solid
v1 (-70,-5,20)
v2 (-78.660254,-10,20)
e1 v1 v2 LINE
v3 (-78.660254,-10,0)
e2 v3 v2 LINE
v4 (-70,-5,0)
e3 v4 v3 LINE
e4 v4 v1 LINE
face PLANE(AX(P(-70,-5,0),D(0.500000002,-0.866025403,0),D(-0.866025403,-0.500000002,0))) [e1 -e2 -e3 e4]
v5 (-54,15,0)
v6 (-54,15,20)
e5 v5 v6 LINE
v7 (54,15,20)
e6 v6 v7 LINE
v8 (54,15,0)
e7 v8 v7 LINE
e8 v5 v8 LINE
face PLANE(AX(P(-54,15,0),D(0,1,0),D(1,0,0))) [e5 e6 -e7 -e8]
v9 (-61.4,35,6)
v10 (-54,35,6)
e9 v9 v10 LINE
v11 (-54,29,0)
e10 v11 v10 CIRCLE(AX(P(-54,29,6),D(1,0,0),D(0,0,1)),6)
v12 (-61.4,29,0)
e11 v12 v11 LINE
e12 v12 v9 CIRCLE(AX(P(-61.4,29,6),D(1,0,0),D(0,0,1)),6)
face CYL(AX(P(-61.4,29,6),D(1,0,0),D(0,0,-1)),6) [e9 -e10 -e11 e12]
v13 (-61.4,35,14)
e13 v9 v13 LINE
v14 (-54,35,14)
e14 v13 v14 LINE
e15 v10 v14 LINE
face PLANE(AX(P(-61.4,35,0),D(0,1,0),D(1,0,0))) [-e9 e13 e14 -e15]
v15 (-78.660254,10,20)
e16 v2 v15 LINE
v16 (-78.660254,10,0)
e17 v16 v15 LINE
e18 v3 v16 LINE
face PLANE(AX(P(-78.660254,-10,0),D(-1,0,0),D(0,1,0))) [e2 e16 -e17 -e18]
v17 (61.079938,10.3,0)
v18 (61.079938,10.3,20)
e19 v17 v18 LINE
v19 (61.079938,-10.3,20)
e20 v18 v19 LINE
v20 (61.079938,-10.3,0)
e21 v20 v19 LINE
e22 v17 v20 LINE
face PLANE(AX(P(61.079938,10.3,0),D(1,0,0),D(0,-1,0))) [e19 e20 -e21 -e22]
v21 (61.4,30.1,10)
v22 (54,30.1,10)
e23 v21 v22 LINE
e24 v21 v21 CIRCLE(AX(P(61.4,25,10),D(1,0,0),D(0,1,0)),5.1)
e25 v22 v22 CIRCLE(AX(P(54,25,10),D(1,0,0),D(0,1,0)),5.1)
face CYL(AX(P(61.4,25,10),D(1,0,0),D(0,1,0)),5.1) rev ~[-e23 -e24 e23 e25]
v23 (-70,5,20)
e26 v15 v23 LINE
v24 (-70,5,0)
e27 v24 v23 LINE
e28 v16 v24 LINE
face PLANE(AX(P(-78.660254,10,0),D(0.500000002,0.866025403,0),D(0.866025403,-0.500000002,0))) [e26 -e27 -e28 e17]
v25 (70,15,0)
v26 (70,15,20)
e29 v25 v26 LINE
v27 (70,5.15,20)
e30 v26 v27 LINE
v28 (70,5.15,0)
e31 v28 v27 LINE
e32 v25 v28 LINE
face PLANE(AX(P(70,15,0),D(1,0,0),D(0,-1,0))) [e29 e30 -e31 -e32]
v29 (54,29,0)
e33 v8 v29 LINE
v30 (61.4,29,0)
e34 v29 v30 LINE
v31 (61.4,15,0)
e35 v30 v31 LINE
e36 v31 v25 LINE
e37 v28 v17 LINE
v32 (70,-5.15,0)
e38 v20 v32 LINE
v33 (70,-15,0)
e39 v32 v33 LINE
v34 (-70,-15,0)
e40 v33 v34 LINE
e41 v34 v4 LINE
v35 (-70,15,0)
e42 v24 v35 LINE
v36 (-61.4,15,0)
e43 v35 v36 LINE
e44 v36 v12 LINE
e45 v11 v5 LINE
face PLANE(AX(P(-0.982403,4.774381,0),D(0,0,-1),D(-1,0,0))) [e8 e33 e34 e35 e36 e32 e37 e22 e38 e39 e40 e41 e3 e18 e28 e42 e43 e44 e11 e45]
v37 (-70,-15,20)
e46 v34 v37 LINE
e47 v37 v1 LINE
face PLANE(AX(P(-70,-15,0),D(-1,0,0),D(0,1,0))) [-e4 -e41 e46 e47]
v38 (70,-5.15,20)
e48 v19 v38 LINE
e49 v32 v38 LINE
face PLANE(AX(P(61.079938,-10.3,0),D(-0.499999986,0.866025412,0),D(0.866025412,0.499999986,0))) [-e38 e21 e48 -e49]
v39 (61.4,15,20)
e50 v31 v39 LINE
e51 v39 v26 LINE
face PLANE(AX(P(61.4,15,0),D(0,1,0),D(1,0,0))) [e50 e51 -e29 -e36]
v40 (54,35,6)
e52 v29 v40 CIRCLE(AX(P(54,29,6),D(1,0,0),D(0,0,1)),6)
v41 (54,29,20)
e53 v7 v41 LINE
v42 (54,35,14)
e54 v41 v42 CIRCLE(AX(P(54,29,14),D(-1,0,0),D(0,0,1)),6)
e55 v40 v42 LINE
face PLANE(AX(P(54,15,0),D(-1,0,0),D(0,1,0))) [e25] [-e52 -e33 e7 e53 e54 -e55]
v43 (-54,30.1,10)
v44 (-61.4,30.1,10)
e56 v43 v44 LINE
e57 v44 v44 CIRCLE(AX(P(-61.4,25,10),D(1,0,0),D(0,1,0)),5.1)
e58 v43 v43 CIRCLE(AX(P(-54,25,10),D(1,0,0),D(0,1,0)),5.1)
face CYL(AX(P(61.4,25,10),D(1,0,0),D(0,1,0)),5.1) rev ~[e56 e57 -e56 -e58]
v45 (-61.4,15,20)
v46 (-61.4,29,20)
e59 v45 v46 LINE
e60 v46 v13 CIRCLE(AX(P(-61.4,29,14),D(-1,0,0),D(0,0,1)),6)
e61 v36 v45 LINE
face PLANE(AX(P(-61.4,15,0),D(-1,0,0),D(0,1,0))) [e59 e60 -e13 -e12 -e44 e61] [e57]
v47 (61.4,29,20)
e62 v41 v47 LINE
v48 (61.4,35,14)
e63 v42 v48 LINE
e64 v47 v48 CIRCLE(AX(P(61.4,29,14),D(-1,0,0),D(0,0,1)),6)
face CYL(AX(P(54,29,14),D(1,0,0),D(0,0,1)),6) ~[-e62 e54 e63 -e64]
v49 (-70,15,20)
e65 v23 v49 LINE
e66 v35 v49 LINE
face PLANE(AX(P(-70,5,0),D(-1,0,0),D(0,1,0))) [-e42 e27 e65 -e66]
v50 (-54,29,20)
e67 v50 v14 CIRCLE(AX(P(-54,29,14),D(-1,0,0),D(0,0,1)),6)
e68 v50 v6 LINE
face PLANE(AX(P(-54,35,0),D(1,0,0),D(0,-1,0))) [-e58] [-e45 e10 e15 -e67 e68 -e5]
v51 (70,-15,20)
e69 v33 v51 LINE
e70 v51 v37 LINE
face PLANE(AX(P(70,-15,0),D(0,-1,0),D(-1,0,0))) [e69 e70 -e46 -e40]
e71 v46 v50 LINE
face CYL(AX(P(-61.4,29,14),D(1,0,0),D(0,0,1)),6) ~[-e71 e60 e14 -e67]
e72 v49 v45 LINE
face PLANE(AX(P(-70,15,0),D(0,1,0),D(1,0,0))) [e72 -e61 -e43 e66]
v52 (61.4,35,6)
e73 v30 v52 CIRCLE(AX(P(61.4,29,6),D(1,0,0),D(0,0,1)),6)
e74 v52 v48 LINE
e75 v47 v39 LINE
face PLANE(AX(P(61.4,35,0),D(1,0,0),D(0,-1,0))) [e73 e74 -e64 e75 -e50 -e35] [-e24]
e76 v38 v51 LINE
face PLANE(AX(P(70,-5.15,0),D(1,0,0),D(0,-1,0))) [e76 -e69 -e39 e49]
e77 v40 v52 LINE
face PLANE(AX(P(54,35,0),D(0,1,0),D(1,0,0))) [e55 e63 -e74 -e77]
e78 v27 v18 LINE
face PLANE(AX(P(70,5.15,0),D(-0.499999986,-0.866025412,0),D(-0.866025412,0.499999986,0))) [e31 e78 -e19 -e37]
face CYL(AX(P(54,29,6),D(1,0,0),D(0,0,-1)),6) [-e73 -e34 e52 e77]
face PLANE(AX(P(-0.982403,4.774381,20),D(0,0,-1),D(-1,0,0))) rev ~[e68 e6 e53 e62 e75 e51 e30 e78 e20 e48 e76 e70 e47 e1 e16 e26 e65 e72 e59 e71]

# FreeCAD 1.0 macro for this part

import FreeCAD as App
import Part
import Sketcher
from FreeCAD import Vector
Q = App.Units.Quantity


def edges_at(feature, points):
    """Names of the edges that pass closest to the given points."""
    edges = feature.Shape.Edges
    near = lambda p: min(range(len(edges)), key=lambda i: edges[i].distToShape(Part.Vertex(*p))[0])
    return sorted({f"Edge{near(p) + 1}" for p in points})


def add_polygon(sketch, points):
    """Adds a closed chain of lines whose ends are joined by coincident constraints."""
    first, n = sketch.GeometryCount, len(points)
    for a, b in zip(points, points[1:] + points[:1]):
        sketch.addGeometry(Part.LineSegment(App.Vector(*a, 0), App.Vector(*b, 0)), False)
    for i in range(n):
        sketch.addConstraint(Sketcher.Constraint("Coincident", first + i, 2, first + (i + 1) % n, 1))

doc = App.newDocument("Part")
params = doc.addObject("Spreadsheet::Sheet", "Params")
for row, (alias, value) in enumerate([
    ("sketch1_width", "140 mm"),
    ("sketch1_width2", "108 mm"),
    ("sketch1_height", "10 mm"),
    ("sketch1_height2", "20 mm"),
    ("sketch1_length", "10 mm"),
    ("pad1_length", "20 mm"),
    ("sketch2_diameter", "10.2 mm"),
    ("pocket1_length", "200 mm"),
    ("fillet_radius", "6 mm"),
], start=1):
    params.set(f"A{row}", alias)
    params.set(f"B{row}", "=" + value)
    params.setAlias(f"B{row}", alias)

body = doc.addObject("PartDesign::Body", "Body")

sketch1 = doc.addObject("Sketcher::SketchObject", "Sketch")
body.addObject(sketch1)
sketch1.AttachmentSupport = (doc.XY_Plane, [""])
sketch1.MapMode = "FlatFace"
add_polygon(sketch1, [(-61, 15), (-70, 15), (-70, 5), (-79, 10), (-79, -10), (-70, -5), (-70, -15), (70, -15), (70, -5), (61, -10), (61, 10), (70, 5), (70, 15), (61, 15), (61, 35), (54, 35), (54, 15), (-54, 15), (-54, 35), (-61, 35)])
sketch1.addConstraint([
    Sketcher.Constraint("Horizontal", 0),
    Sketcher.Constraint("Vertical", 1),
    Sketcher.Constraint("Vertical", 3),
    Sketcher.Constraint("Vertical", 5),
    Sketcher.Constraint("Horizontal", 6),
    Sketcher.Constraint("Vertical", 7),
    Sketcher.Constraint("Vertical", 9),
    Sketcher.Constraint("Vertical", 11),
    Sketcher.Constraint("Horizontal", 12),
    Sketcher.Constraint("Vertical", 13),
    Sketcher.Constraint("Horizontal", 14),
    Sketcher.Constraint("Vertical", 15),
    Sketcher.Constraint("Horizontal", 16),
    Sketcher.Constraint("Vertical", 17),
    Sketcher.Constraint("Horizontal", 18),
    Sketcher.Constraint("Vertical", 19),
    Sketcher.Constraint("Symmetric", 0, 2, 6, 2, -1, 1),
    Sketcher.Constraint("Symmetric", 5, 2, 11, 2, -1, 1),
    Sketcher.Constraint("Symmetric", 14, 2, 17, 2, -2),
    Sketcher.Constraint("Symmetric", 1, 2, 4, 2, -1),
    Sketcher.Constraint("Parallel", 4, 8),
    Sketcher.Constraint("Parallel", 2, 10),
    Sketcher.Constraint("Horizontal", 12, 2, 15, 2),
    Sketcher.Constraint("Equal", 0, 12),
    Sketcher.Constraint("Equal", 7, 11),
    Sketcher.Constraint("Equal", 3, 13),
    Sketcher.Constraint("Equal", 2, 4),
    Sketcher.Constraint("DistanceX", 6, 1, 6, 2, Q("140 mm")),
    Sketcher.Constraint("DistanceX", 16, 2, 16, 1, Q("108 mm")),
    Sketcher.Constraint("DistanceY", 1, 2, 1, 1, Q("10 mm")),
    Sketcher.Constraint("DistanceY", 3, 2, 3, 1, Q("20 mm")),
    Sketcher.Constraint("Angle", 2, Q("150 deg")),
    Sketcher.Constraint("Distance", 2, Q("10 mm")),
    Sketcher.Constraint("DistanceX", 0, 2, 0, 1, Q("8.6 mm")),
    Sketcher.Constraint("DistanceY", 9, 1, 9, 2, Q("20.6 mm")),
    Sketcher.Constraint("Distance", 8, Q("10.3 mm")),
])
sketch1.setExpression("Constraints[47]", "Params.sketch1_width")
sketch1.setExpression("Constraints[48]", "Params.sketch1_width2")
sketch1.setExpression("Constraints[49]", "Params.sketch1_height")
sketch1.setExpression("Constraints[50]", "Params.sketch1_height2")
sketch1.setExpression("Constraints[52]", "Params.sketch1_length")
pad1 = doc.addObject("PartDesign::Pad", "Pad")
body.addObject(pad1)
pad1.Profile = sketch1
pad1.setExpression("Length", "Params.pad1_length")

sketch2 = doc.addObject("Sketcher::SketchObject", "Sketch001")
body.addObject(sketch2)
sketch2.AttachmentSupport = (doc.YZ_Plane, [""])
sketch2.MapMode = "FlatFace"
sketch2.AttachmentOffset = App.Placement(Vector(0, 0, 61.4), App.Rotation())
sketch2.addGeometry(Part.Circle(Vector(25, 10, 0), Vector(0, 0, 1), 5), False)
sketch2.addConstraint([
    Sketcher.Constraint("Diameter", 0, Q("10.2 mm")),
    Sketcher.Constraint("DistanceX", -1, 1, 0, 3, Q("25 mm")),
    Sketcher.Constraint("DistanceY", -1, 1, 0, 3, Q("10 mm")),
])
sketch2.setExpression("Constraints[0]", "Params.sketch2_diameter")
pocket1 = doc.addObject("PartDesign::Pocket", "Pocket")
body.addObject(pocket1)
pocket1.Profile = sketch2
pocket1.setExpression("Length", "Params.pocket1_length")
doc.recompute()

fillet = doc.addObject("PartDesign::Fillet", "Fillet")
body.addObject(fillet)
fillet.Base = (pocket1, edges_at(pocket1, [
    (57.7, 35, 20),
    (57.7, 35, 0),
    (-57.7, 35, 0),
    (-57.7, 35, 20),
]))
fillet.setExpression("Radius", "Params.fillet_radius")

doc.recompute()
